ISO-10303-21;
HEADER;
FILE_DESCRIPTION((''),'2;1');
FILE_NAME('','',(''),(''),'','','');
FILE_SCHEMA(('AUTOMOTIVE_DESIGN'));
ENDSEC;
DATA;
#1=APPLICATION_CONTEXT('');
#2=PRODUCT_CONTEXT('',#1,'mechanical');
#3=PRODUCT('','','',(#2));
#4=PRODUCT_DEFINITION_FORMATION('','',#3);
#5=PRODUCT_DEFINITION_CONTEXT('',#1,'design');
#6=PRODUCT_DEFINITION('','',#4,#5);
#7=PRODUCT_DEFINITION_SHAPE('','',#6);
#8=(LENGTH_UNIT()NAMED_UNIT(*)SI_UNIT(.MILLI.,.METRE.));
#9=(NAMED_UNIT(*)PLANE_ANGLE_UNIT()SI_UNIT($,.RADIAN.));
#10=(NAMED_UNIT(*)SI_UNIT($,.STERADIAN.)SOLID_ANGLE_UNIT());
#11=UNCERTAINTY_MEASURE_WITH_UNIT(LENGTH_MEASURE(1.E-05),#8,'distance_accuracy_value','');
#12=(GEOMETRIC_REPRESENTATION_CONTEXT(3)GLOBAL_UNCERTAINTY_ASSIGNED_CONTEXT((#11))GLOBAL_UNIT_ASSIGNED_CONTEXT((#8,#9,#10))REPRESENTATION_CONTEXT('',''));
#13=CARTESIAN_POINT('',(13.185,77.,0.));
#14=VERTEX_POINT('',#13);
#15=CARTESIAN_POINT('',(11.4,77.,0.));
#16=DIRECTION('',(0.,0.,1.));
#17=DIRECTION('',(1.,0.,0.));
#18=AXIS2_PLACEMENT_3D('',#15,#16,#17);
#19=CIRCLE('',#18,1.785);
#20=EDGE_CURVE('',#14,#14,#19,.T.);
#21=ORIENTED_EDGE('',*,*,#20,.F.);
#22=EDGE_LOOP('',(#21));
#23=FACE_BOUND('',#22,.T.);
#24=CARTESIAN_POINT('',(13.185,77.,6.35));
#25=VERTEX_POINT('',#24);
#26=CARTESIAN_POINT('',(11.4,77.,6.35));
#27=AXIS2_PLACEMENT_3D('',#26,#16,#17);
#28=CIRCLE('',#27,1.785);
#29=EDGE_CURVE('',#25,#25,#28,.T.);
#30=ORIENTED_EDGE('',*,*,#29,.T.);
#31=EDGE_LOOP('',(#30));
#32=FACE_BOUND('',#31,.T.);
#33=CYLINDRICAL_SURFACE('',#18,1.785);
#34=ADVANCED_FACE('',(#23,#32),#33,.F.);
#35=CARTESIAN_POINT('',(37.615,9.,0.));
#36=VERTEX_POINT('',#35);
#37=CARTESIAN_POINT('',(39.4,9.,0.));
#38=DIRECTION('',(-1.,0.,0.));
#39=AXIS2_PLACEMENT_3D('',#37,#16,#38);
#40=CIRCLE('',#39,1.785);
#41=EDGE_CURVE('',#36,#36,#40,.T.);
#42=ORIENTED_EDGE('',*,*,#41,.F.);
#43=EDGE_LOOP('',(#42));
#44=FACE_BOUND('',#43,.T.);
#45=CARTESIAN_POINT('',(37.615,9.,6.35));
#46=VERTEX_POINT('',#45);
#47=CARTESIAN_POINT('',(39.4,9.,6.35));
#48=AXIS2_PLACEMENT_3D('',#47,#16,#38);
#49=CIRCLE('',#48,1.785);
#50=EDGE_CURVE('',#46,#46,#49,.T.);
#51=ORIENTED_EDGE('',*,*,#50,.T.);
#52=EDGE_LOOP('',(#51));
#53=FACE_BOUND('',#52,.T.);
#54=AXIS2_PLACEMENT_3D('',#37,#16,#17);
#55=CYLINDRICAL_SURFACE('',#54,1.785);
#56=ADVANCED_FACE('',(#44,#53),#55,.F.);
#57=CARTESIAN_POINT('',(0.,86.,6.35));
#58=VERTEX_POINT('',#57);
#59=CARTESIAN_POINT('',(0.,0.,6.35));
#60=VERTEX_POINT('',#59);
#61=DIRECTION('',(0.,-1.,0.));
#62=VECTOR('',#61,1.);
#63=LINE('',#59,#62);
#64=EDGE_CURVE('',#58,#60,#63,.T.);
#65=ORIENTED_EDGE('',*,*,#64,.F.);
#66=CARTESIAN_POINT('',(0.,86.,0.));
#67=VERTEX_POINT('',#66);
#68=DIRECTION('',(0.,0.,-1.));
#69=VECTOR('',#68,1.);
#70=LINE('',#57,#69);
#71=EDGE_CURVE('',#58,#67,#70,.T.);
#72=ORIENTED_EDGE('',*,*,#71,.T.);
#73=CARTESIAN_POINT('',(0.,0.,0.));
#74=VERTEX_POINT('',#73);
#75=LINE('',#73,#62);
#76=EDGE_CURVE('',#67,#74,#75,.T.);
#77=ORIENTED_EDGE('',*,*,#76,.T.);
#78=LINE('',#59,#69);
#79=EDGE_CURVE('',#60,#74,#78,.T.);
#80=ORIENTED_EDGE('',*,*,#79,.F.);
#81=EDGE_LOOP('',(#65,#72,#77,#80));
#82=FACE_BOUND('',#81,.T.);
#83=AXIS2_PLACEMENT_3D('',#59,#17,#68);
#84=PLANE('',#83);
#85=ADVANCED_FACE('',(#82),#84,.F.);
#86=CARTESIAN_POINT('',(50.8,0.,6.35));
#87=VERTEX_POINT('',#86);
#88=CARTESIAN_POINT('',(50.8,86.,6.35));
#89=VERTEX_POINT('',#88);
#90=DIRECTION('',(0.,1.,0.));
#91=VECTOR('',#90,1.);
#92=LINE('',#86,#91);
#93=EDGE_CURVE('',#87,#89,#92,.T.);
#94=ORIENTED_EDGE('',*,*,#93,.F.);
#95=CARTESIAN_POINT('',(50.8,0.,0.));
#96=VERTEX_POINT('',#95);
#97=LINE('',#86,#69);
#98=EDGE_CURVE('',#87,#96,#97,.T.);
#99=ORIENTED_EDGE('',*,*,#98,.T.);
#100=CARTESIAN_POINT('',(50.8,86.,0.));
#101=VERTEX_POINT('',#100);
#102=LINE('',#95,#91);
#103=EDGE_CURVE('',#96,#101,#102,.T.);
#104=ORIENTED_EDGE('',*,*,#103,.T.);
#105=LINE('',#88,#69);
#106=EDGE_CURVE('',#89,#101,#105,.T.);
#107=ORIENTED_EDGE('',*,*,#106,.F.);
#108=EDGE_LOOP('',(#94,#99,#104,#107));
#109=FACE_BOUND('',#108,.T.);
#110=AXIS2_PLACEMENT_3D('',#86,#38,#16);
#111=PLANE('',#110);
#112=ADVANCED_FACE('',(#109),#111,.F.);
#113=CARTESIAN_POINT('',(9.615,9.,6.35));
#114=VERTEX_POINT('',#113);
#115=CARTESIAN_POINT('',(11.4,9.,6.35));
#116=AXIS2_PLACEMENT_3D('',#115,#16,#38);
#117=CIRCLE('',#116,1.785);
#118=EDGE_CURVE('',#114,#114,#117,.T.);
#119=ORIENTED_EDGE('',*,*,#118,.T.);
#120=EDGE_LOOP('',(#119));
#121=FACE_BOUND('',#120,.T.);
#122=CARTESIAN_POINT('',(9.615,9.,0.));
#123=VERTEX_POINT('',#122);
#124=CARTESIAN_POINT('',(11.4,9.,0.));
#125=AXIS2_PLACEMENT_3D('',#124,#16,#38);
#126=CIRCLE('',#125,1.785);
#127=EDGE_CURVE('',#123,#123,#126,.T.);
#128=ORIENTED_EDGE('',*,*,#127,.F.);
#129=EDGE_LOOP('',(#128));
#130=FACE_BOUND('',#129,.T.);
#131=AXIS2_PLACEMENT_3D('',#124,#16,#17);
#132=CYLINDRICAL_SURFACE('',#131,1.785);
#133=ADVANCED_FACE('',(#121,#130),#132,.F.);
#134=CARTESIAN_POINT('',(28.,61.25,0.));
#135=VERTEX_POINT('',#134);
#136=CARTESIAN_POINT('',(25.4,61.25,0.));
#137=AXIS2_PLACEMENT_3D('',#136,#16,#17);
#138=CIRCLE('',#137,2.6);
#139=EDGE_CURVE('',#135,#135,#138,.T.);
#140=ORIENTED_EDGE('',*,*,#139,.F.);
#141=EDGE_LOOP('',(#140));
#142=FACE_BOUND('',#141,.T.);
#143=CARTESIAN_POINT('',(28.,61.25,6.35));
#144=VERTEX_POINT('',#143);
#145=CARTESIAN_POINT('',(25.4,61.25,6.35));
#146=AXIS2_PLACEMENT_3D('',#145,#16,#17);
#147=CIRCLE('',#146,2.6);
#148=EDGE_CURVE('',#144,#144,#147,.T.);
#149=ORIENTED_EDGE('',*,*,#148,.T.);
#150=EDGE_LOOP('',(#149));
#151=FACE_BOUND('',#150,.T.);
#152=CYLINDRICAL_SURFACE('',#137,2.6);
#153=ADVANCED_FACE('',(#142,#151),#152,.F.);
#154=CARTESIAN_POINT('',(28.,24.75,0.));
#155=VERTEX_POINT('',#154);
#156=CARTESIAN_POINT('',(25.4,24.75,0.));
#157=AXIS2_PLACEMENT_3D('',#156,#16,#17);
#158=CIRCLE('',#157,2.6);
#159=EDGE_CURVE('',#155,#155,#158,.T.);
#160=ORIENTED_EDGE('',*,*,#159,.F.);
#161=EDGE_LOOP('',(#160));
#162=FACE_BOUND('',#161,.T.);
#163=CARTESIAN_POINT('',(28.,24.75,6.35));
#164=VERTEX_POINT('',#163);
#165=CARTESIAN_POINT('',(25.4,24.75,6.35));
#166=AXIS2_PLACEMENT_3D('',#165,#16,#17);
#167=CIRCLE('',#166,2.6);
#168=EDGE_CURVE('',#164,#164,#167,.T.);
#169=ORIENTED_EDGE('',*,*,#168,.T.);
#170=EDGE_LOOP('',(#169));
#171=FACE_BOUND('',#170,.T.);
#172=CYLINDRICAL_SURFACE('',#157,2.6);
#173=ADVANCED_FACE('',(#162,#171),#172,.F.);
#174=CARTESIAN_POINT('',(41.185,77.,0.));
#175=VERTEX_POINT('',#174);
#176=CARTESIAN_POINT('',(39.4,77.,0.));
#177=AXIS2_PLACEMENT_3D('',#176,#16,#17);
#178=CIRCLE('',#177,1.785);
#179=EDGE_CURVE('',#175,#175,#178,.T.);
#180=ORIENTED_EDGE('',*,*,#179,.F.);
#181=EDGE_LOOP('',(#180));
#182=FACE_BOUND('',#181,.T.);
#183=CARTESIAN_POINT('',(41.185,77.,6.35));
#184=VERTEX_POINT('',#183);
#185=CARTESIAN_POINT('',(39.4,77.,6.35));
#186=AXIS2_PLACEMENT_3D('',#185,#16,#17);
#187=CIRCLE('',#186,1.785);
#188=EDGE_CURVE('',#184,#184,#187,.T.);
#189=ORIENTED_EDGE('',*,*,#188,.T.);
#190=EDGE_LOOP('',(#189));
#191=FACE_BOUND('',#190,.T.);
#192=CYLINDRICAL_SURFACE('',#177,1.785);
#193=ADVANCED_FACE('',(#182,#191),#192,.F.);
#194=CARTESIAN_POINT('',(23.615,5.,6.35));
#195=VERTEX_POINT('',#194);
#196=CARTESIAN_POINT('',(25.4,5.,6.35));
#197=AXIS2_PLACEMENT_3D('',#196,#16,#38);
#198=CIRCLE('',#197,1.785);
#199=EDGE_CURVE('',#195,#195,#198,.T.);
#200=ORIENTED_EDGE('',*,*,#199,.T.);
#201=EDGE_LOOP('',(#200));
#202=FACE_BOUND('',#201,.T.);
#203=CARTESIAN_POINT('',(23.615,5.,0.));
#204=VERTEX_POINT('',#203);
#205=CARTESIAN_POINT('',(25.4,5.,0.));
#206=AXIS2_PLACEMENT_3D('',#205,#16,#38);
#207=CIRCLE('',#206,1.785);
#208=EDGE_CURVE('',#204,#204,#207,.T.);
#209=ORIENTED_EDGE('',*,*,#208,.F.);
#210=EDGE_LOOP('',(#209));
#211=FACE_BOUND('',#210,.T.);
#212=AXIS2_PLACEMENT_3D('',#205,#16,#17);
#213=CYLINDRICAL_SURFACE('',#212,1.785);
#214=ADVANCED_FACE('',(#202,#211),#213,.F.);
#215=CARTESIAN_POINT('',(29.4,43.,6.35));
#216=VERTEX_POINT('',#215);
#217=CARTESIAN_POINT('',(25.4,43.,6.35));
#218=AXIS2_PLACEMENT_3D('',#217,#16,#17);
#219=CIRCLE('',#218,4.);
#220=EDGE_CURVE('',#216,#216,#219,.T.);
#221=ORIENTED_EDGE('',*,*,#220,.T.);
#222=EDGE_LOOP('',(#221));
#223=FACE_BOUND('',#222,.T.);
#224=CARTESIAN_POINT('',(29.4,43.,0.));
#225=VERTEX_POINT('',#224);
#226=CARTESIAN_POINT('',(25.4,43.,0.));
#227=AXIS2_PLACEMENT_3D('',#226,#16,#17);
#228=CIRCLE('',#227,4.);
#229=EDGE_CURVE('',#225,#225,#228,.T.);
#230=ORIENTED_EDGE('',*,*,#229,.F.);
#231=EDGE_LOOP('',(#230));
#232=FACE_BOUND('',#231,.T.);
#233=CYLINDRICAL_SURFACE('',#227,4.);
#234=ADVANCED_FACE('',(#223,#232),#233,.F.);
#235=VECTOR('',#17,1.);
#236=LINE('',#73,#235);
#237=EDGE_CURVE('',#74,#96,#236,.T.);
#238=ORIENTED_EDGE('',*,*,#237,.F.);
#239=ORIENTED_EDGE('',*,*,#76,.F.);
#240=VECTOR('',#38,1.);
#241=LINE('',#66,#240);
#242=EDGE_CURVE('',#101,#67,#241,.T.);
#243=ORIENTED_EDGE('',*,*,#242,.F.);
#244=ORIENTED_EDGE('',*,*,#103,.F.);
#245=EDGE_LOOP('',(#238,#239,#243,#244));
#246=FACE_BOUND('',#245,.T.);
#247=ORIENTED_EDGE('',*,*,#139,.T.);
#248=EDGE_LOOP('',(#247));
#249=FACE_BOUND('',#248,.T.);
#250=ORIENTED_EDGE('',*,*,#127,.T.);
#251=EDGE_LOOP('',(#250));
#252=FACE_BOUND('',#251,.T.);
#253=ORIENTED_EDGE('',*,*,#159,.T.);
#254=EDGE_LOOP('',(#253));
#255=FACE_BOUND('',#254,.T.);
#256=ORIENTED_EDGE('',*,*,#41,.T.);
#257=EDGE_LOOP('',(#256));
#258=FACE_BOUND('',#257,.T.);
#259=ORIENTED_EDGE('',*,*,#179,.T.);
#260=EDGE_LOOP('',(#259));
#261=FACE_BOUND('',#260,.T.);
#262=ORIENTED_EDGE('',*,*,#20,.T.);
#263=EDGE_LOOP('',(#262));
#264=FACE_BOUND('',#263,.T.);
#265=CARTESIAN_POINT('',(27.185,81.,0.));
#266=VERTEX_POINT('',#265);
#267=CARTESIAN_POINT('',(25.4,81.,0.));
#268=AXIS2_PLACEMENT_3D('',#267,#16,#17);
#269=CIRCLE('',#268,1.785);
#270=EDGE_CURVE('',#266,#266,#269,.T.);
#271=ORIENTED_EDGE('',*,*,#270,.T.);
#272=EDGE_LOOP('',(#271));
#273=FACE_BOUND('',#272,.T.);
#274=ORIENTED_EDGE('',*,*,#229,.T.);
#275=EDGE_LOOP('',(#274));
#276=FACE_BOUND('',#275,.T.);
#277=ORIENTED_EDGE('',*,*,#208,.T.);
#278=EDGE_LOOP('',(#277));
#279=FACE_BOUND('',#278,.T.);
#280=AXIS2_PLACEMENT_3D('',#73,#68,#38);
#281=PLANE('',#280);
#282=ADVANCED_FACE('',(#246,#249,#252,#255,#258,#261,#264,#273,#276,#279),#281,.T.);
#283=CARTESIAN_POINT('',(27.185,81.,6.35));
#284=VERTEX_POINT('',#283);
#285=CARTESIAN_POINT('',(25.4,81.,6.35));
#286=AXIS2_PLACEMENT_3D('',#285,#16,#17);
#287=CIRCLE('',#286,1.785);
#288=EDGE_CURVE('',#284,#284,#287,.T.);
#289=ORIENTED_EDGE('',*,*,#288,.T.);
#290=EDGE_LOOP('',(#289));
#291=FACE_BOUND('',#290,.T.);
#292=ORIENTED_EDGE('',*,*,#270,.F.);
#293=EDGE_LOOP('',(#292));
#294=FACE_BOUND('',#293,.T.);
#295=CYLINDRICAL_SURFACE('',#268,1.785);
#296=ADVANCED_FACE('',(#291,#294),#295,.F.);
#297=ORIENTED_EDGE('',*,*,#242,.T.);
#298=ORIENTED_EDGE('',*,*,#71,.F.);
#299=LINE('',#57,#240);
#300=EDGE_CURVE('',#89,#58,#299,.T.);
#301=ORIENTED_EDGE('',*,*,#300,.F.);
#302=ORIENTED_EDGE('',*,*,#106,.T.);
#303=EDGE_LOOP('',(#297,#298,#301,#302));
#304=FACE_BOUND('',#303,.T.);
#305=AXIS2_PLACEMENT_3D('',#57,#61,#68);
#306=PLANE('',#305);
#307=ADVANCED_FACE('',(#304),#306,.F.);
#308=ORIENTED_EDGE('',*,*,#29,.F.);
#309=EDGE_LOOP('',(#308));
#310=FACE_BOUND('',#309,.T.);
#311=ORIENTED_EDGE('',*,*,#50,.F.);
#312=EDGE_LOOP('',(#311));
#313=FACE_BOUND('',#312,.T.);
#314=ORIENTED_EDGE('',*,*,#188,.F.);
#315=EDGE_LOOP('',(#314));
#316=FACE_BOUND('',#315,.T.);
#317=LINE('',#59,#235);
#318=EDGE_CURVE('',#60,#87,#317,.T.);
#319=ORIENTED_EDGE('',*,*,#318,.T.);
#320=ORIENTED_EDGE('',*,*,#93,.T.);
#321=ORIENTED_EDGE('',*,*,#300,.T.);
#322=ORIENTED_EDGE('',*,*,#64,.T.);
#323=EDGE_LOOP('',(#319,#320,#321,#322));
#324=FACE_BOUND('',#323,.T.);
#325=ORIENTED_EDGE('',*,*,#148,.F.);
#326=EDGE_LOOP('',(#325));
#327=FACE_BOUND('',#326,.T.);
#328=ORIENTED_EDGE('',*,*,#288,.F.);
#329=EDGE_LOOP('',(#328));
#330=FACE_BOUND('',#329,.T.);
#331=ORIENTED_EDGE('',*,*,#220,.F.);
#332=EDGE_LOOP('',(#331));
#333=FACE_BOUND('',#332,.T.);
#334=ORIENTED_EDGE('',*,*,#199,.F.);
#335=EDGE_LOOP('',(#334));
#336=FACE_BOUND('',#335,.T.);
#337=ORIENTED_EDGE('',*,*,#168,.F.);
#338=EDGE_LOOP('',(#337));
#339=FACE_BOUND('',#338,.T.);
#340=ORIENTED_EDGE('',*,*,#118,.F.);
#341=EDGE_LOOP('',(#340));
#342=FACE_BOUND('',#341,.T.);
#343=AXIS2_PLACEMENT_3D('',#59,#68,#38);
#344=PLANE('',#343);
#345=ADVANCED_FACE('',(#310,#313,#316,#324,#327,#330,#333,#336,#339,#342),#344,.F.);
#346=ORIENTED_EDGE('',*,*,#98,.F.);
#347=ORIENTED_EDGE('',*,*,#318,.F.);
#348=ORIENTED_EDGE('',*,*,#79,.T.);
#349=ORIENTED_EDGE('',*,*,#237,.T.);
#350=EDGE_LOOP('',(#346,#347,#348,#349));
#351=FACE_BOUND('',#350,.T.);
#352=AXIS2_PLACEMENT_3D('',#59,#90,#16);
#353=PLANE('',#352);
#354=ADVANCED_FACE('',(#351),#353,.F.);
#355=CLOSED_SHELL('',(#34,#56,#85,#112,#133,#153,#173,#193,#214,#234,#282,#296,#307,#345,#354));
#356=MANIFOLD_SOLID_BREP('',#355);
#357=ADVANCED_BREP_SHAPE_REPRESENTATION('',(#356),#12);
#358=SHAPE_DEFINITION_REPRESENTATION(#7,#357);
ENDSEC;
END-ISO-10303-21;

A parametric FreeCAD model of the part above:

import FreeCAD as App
import Part
import Sketcher

V = App.Vector

doc = App.newDocument("Part")
body = doc.addObject("PartDesign::Body", "Body")

# Sketch on XY plane
sketch1 = body.newObject("Sketcher::SketchObject", "Sketch")
sketch1.AttachmentSupport = (doc.getObject("XY_Plane"), [""])
sketch1.MapMode = "FlatFace"
sketch1.addGeometry([
    Part.LineSegment(V(0, 86, 0), V(0, 0, 0)),
    Part.LineSegment(V(0, 0, 0), V(51, 0, 0)),
    Part.LineSegment(V(51, 0, 0), V(51, 86, 0)),
    Part.LineSegment(V(51, 86, 0), V(0, 86, 0)),
], False)
sketch1.addConstraint([
    Sketcher.Constraint("Coincident", 0, 2, 1, 1),
    Sketcher.Constraint("Coincident", 1, 2, 2, 1),
    Sketcher.Constraint("Coincident", 2, 2, 3, 1),
    Sketcher.Constraint("Coincident", 3, 2, 0, 1),
    Sketcher.Constraint("Vertical", 0),
    Sketcher.Constraint("Horizontal", 1),
    Sketcher.Constraint("Vertical", 2),
    Sketcher.Constraint("Horizontal", 3),
    Sketcher.Constraint("Coincident", 0, 2, -1, 1),
    Sketcher.Constraint("DistanceY", 0, 2, 0, 1, 86.0),
    Sketcher.Constraint("DistanceX", 1, 1, 1, 2, 50.8),
])
pad1 = body.newObject("PartDesign::Pad", "Pad")
pad1.Profile = sketch1
pad1.Length = 6.35

# Sketch on XY plane
sketch2 = body.newObject("Sketcher::SketchObject", "Sketch001")
sketch2.AttachmentSupport = (doc.getObject("XY_Plane"), [""])
sketch2.MapMode = "FlatFace"
sketch2.AttachmentOffset = App.Placement(V(0, 0, 6.35), App.Rotation())
sketch2.addGeometry([
    Part.Circle(V(25.4, 43, 0), V(0, 0, 1), 4),
    Part.Circle(V(25.4, 61.2, 0), V(0, 0, 1), 2.6),
    Part.Circle(V(25.4, 24.8, 0), V(0, 0, 1), 2.6),
], False)
sketch2.addConstraint([
    Sketcher.Constraint("Equal", 1, 2),
    Sketcher.Constraint("Vertical", 0, 3, 1, 3),
    Sketcher.Constraint("Vertical", 1, 3, 2, 3),
    Sketcher.Constraint("Diameter", 0, 8.0),
    Sketcher.Constraint("Diameter", 1, 5.2),
    Sketcher.Constraint("DistanceY", -1, 1, 0, 3, 43.0),
    Sketcher.Constraint("DistanceX", -1, 1, 0, 3, 25.4),
    Sketcher.Constraint("DistanceY", 2, 3, 1, 3, 36.5),
    Sketcher.Constraint("DistanceY", -1, 1, 1, 3, 61.25),
])
pocket1 = body.newObject("PartDesign::Pocket", "Pocket")
pocket1.Profile = sketch2
pocket1.Length = 6.35

# Sketch on XY plane
sketch3 = body.newObject("Sketcher::SketchObject", "Sketch002")
sketch3.AttachmentSupport = (doc.getObject("XY_Plane"), [""])
sketch3.MapMode = "FlatFace"
sketch3.AttachmentOffset = App.Placement(V(0, 0, 6.35), App.Rotation())
sketch3.addGeometry([
    Part.Circle(V(25.4, 81, 0), V(0, 0, 1), 1.8),  # 0
    Part.Circle(V(11.4, 77, 0), V(0, 0, 1), 1.8),  # 1
    Part.Circle(V(39.4, 77, 0), V(0, 0, 1), 1.8),  # 2
    Part.Circle(V(39.4, 9, 0), V(0, 0, 1), 1.8),  # 3
    Part.Circle(V(11.4, 9, 0), V(0, 0, 1), 1.8),  # 4
    Part.Circle(V(25.4, 5, 0), V(0, 0, 1), 1.8),  # 5
], False)
sketch3.addConstraint([
    Sketcher.Constraint("Equal", 0, 1),
    Sketcher.Constraint("Equal", 1, 2),
    Sketcher.Constraint("Equal", 2, 3),
    Sketcher.Constraint("Equal", 3, 4),
    Sketcher.Constraint("Equal", 4, 5),
    Sketcher.Constraint("Horizontal", 1, 3, 2, 3),
    Sketcher.Constraint("Horizontal", 3, 3, 4, 3),
    Sketcher.Constraint("Vertical", 2, 3, 3, 3),
    Sketcher.Constraint("Vertical", 1, 3, 4, 3),
    Sketcher.Constraint("Vertical", 0, 3, 5, 3),
    Sketcher.Constraint("Diameter", 0, 3.57),
    Sketcher.Constraint("DistanceY", -1, 1, 0, 3, 81.0),
    Sketcher.Constraint("DistanceY", -1, 1, 1, 3, 77.0),
    Sketcher.Constraint("DistanceY", -1, 1, 3, 3, 9.0),
    Sketcher.Constraint("DistanceY", -1, 1, 5, 3, 5.0),
    Sketcher.Constraint("DistanceX", 1, 3, 0, 3, 14.0),
    Sketcher.Constraint("DistanceX", 0, 3, 2, 3, 14.0),
    Sketcher.Constraint("DistanceX", -1, 1, 0, 3, 25.4),
])
pocket2 = body.newObject("PartDesign::Pocket", "Pocket001")
pocket2.Profile = sketch3
pocket2.Type = "ThroughAll"

doc.recompute()
